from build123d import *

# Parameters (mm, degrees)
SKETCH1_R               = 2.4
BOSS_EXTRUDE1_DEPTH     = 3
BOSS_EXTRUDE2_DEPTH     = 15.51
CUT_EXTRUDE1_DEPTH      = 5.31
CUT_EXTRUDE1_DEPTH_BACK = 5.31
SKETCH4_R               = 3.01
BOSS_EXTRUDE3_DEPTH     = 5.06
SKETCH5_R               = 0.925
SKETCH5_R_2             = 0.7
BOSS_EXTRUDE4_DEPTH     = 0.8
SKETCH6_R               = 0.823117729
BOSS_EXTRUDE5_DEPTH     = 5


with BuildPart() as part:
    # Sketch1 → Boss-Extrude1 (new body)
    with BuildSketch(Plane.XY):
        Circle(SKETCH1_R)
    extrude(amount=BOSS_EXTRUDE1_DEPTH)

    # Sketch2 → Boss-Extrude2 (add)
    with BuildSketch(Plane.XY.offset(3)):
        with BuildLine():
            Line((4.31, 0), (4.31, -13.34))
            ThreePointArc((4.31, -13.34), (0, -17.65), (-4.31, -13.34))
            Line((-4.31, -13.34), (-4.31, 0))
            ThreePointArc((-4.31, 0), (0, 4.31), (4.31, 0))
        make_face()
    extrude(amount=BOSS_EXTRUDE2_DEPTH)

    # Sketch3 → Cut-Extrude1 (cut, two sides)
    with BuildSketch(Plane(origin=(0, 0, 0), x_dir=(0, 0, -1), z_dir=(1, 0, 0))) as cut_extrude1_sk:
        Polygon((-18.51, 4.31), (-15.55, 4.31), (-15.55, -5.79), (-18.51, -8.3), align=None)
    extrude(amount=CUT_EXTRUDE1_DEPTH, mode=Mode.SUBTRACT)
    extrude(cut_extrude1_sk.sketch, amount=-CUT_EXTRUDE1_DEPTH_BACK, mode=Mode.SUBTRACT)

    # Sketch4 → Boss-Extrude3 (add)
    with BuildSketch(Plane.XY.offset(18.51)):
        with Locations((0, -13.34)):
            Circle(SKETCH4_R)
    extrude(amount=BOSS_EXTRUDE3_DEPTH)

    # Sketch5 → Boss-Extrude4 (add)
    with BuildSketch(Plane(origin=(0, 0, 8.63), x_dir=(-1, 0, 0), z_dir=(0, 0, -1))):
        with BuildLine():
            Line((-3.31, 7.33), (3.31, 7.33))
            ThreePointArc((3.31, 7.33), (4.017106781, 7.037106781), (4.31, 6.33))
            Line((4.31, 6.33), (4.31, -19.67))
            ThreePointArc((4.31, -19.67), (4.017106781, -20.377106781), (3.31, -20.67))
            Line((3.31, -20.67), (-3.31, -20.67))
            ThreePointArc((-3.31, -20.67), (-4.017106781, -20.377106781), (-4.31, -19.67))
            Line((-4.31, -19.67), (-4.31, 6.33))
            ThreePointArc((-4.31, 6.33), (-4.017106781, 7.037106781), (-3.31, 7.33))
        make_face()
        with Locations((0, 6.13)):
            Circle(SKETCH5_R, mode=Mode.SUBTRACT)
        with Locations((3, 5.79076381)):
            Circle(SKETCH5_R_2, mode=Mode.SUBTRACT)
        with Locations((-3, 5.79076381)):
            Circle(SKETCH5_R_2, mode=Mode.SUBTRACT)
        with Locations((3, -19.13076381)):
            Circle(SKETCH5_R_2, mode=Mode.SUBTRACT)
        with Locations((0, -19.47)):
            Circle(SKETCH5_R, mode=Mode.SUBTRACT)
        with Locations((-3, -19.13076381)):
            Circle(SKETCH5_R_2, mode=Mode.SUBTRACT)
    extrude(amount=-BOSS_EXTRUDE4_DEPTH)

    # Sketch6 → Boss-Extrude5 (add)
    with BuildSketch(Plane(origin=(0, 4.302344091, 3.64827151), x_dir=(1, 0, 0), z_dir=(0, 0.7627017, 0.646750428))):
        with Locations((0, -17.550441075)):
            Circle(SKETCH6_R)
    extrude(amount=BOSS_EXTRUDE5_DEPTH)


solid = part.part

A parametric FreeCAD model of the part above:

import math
import FreeCAD as App
import Part
import Sketcher

V = App.Vector
Q = App.Units.Quantity

doc = App.newDocument("Part")
body = doc.addObject("PartDesign::Body", "Body")

# Sketch on XY plane
sketch1 = doc.addObject("Sketcher::SketchObject", "Sketch")
body.addObject(sketch1)
sketch1.AttachmentSupport = (doc.XY_Plane, [""])
sketch1.MapMode = "FlatFace"
sketch1.addGeometry(Part.Circle(V(0, 0, 0), V(0, 0, 1), 2.4), False)
sketch1.addConstraint([
    Sketcher.Constraint("Coincident", 0, 3, -1, 1),
    Sketcher.Constraint("Diameter", 0, Q("4.8 mm")),
])
pad1 = doc.addObject("PartDesign::Pad", "Pad")
body.addObject(pad1)
pad1.Profile = sketch1
pad1.Length = 3

# Sketch on XY plane
sketch2 = doc.addObject("Sketcher::SketchObject", "Sketch001")
body.addObject(sketch2)
sketch2.AttachmentSupport = (doc.XY_Plane, [""])
sketch2.MapMode = "FlatFace"
sketch2.AttachmentOffset = App.Placement(V(0, 0, 3), App.Rotation())
sketch2.addGeometry([
    Part.LineSegment(V(4.3, -13.3, 0), V(4.3, 0, 0)),
    Part.ArcOfCircle(Part.Circle(V(0, 0, 0), V(0, 0, 1), 4.3), math.radians(0), math.radians(180)),
    Part.LineSegment(V(-4.3, 0, 0), V(-4.3, -13.3, 0)),
    Part.ArcOfCircle(Part.Circle(V(0, -13.3, 0), V(0, 0, 1), 4.3), math.radians(180), math.radians(360)),
], False)
sketch2.addConstraint([
    Sketcher.Constraint("Tangent", 0, 2, 1, 1),
    Sketcher.Constraint("Tangent", 1, 2, 2, 1),
    Sketcher.Constraint("Tangent", 2, 2, 3, 1),
    Sketcher.Constraint("Tangent", 3, 2, 0, 1),
    Sketcher.Constraint("Vertical", 0),
    Sketcher.Constraint("Vertical", 2),
    Sketcher.Constraint("Coincident", 1, 3, -1, 1),
    Sketcher.Constraint("Radius", 1, Q("4.31 mm")),
    Sketcher.Constraint("DistanceY", 0, 1, 0, 2, Q("13.34 mm")),
])
pad2 = doc.addObject("PartDesign::Pad", "Pad001")
body.addObject(pad2)
pad2.Profile = sketch2
pad2.Length = 15.51

# Sketch on YZ plane
sketch3 = doc.addObject("Sketcher::SketchObject", "Sketch002")
body.addObject(sketch3)
sketch3.AttachmentSupport = (doc.YZ_Plane, [""])
sketch3.MapMode = "FlatFace"
sketch3.addGeometry([
    Part.LineSegment(V(4.3, 15.6, 0), V(4.3, 18.5, 0)),
    Part.LineSegment(V(4.3, 18.5, 0), V(-8.3, 18.5, 0)),
    Part.LineSegment(V(-8.3, 18.5, 0), V(-5.8, 15.6, 0)),
    Part.LineSegment(V(-5.8, 15.6, 0), V(4.3, 15.6, 0)),
], False)
sketch3.addConstraint([
    Sketcher.Constraint("Coincident", 0, 2, 1, 1),
    Sketcher.Constraint("Coincident", 1, 2, 2, 1),
    Sketcher.Constraint("Coincident", 2, 2, 3, 1),
    Sketcher.Constraint("Coincident", 3, 2, 0, 1),
    Sketcher.Constraint("Vertical", 0),
    Sketcher.Constraint("Horizontal", 1),
    Sketcher.Constraint("Horizontal", 3),
    Sketcher.Constraint("DistanceX", 3, 1, 3, 2, Q("10.1 mm")),
    Sketcher.Constraint("DistanceX", 1, 2, 1, 1, Q("12.61 mm")),
    Sketcher.Constraint("DistanceY", 0, 1, 0, 2, Q("2.96 mm")),
    Sketcher.Constraint("DistanceX", 1, 2, -1, 1, Q("8.3 mm")),
    Sketcher.Constraint("DistanceY", -1, 1, 0, 2, Q("18.51 mm")),
])
pocket1 = doc.addObject("PartDesign::Pocket", "Pocket")
body.addObject(pocket1)
pocket1.Profile = sketch3
pocket1.Type = "ThroughAll"
pocket1.Midplane = True

# Sketch on XY plane
sketch4 = doc.addObject("Sketcher::SketchObject", "Sketch003")
body.addObject(sketch4)
sketch4.AttachmentSupport = (doc.XY_Plane, [""])
sketch4.MapMode = "FlatFace"
sketch4.AttachmentOffset = App.Placement(V(0, 0, 18.51), App.Rotation())
sketch4.addGeometry(Part.Circle(V(0, -13.3, 0), V(0, 0, 1), 3), False)
sketch4.addConstraint([
    Sketcher.Constraint("PointOnObject", 0, 3, -2),
    Sketcher.Constraint("Diameter", 0, Q("6.02 mm")),
    Sketcher.Constraint("DistanceY", 0, 3, -1, 1, Q("13.34 mm")),
])
pad3 = doc.addObject("PartDesign::Pad", "Pad002")
body.addObject(pad3)
pad3.Profile = sketch4
pad3.Length = 5.06

# Sketch on XY plane
sketch5 = doc.addObject("Sketcher::SketchObject", "Sketch004")
body.addObject(sketch5)
sketch5.AttachmentSupport = (doc.XY_Plane, [""])
sketch5.MapMode = "FlatFace"
sketch5.AttachmentOffset = App.Placement(V(0, 0, 8.63), App.Rotation())
sketch5.addGeometry([
    Part.LineSegment(V(-3.3, 7.3, 0), V(3.3, 7.3, 0)),  # 0
    Part.ArcOfCircle(Part.Circle(V(3.3, 6.3, 0), V(0, 0, 1), 1), math.radians(0), math.radians(90)),  # 1
    Part.LineSegment(V(4.3, 6.3, 0), V(4.3, -19.7, 0)),  # 2
    Part.ArcOfCircle(Part.Circle(V(3.3, -19.7, 0), V(0, 0, 1), 1), math.radians(-90), math.radians(0)),  # 3
    Part.LineSegment(V(3.3, -20.7, 0), V(-3.3, -20.7, 0)),  # 4
    Part.ArcOfCircle(Part.Circle(V(-3.3, -19.7, 0), V(0, 0, 1), 1), math.radians(-180), math.radians(-90)),  # 5
    Part.LineSegment(V(-4.3, -19.7, 0), V(-4.3, 6.3, 0)),  # 6
    Part.ArcOfCircle(Part.Circle(V(-3.3, 6.3, 0), V(0, 0, 1), 1), math.radians(90), math.radians(180)),  # 7
    Part.Circle(V(-3, -19.1, 0), V(0, 0, 1), 0.7),  # 8
    Part.Circle(V(0, -19.5, 0), V(0, 0, 1), 0.9),  # 9
    Part.Circle(V(3, -19.1, 0), V(0, 0, 1), 0.7),  # 10
    Part.Circle(V(-3, 5.8, 0), V(0, 0, 1), 0.7),  # 11
    Part.Circle(V(0, 6.1, 0), V(0, 0, 1), 0.9),  # 12
    Part.Circle(V(3, 5.8, 0), V(0, 0, 1), 0.7),  # 13
], False)
sketch5.addConstraint([
    Sketcher.Constraint("Tangent", 0, 2, 1, 2),
    Sketcher.Constraint("Tangent", 1, 1, 2, 1),
    Sketcher.Constraint("Tangent", 2, 2, 3, 2),
    Sketcher.Constraint("Tangent", 3, 1, 4, 1),
    Sketcher.Constraint("Tangent", 4, 2, 5, 2),
    Sketcher.Constraint("Tangent", 5, 1, 6, 1),
    Sketcher.Constraint("Tangent", 6, 2, 7, 2),
    Sketcher.Constraint("Tangent", 7, 1, 0, 1),
    Sketcher.Constraint("Horizontal", 0),
    Sketcher.Constraint("Vertical", 2),
    Sketcher.Constraint("Horizontal", 4),
    Sketcher.Constraint("Vertical", 6),
    Sketcher.Constraint("Equal", 1, 3),
    Sketcher.Constraint("Equal", 3, 5),
    Sketcher.Constraint("Equal", 5, 7),
    Sketcher.Constraint("Equal", 8, 10),
    Sketcher.Constraint("Equal", 10, 11),
    Sketcher.Constraint("Equal", 9, 12),
    Sketcher.Constraint("Equal", 11, 13),
    Sketcher.Constraint("Symmetric", 8, 3, 10, 3, -2),
    Sketcher.Constraint("Symmetric", 11, 3, 13, 3, -2),
    Sketcher.Constraint("PointOnObject", 9, 3, -2),
    Sketcher.Constraint("PointOnObject", 12, 3, -2),
    Sketcher.Constraint("Vertical", 8, 3, 11, 3),
    Sketcher.Constraint("Radius", 1, Q("1 mm")),
    Sketcher.Constraint("Diameter", 8, Q("1.4 mm")),
    Sketcher.Constraint("Diameter", 9, Q("1.85 mm")),
    Sketcher.Constraint("DistanceY", 2, 2, 2, 1, Q("26 mm")),
    Sketcher.Constraint("DistanceX", 8, 3, -1, 1, Q("3 mm")),
    Sketcher.Constraint("DistanceX", 0, 1, 0, 2, Q("6.62 mm")),
    Sketcher.Constraint("DistanceY", 3, 3, 9, 3, Q("0.2 mm")),
    Sketcher.Constraint("DistanceY", 12, 3, 1, 3, Q("0.2 mm")),
    Sketcher.Constraint("DistanceX", -1, 1, 1, 3, Q("3.31 mm")),
    Sketcher.Constraint("DistanceY", -1, 1, 1, 3, Q("6.33 mm")),
    Sketcher.Constraint("DistanceY", 8, 3, -1, 1, Q("19.130764 mm")),
    Sketcher.Constraint("DistanceY", -1, 1, 11, 3, Q("5.790764 mm")),
])
pad4 = doc.addObject("PartDesign::Pad", "Pad003")
body.addObject(pad4)
pad4.Profile = sketch5
pad4.Length = 0.8

# Sketch on an angled plane
sketch6 = doc.addObject("Sketcher::SketchObject", "Sketch005")
body.addObject(sketch6)
sketch6.Placement = App.Placement(V(0, 4.302344, 3.648272), App.Rotation(V(1, 0, 0), V(0, 0.646750428, -0.7627017), V(0, 0.7627017, 0.646750428), "ZXY"))
sketch6.addGeometry(Part.Circle(V(0, -17.6, 0), V(0, 0, 1), 0.8), False)
sketch6.addConstraint([
    Sketcher.Constraint("PointOnObject", 0, 3, -2),
    Sketcher.Constraint("Diameter", 0, Q("1.646235 mm")),
    Sketcher.Constraint("DistanceY", 0, 3, -1, 1, Q("17.550441 mm")),
])
pad5 = doc.addObject("PartDesign::Pad", "Pad004")
body.addObject(pad5)
pad5.Profile = sketch6
pad5.Length = 5

doc.recompute()
